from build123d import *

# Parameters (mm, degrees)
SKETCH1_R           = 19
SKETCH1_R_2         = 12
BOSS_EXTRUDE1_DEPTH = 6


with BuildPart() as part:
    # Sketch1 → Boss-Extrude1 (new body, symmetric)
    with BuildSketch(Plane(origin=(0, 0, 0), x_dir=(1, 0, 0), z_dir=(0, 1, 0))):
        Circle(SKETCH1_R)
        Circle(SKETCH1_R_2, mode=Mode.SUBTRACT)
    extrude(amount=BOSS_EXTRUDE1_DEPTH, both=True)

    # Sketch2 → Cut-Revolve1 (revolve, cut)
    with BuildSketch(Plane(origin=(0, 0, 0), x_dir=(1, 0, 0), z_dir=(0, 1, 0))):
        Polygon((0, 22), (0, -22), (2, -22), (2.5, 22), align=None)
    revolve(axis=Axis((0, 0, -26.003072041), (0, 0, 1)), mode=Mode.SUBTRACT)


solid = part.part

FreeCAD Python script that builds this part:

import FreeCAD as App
import Part
import Sketcher

V = App.Vector

doc = App.newDocument("Part")
body = doc.addObject("PartDesign::Body", "Body")

# Sketch on XZ plane
sketch1 = body.newObject("Sketcher::SketchObject", "Sketch")
sketch1.AttachmentSupport = (doc.getObject("XZ_Plane"), [""])
sketch1.MapMode = "FlatFace"
sketch1.addGeometry(Part.Circle(V(0, 0, 0), V(0, 0, 1), 19), False)
sketch1.addGeometry(Part.Circle(V(0, 0, 0), V(0, 0, 1), 12), False)
sketch1.addConstraint(Sketcher.Constraint("Coincident", 0, 3, -1, 1))
sketch1.addConstraint(Sketcher.Constraint("Coincident", 1, 3, -1, 1))
sketch1.addConstraint(Sketcher.Constraint("Diameter", 0, 38.0))
sketch1.addConstraint(Sketcher.Constraint("Diameter", 1, 24.0))
pad1 = body.newObject("PartDesign::Pad", "Pad")
pad1.Profile = sketch1
pad1.Length = 12
pad1.Midplane = True

# Sketch on XZ plane
sketch2 = body.newObject("Sketcher::SketchObject", "Sketch001")
sketch2.AttachmentSupport = (doc.getObject("XZ_Plane"), [""])
sketch2.MapMode = "FlatFace"
sketch2.addGeometry(Part.LineSegment(V(0, -22, 0), V(0, 22, 0)), False)
sketch2.addGeometry(Part.LineSegment(V(0, 22, 0), V(2, 22, 0)), False)
sketch2.addGeometry(Part.LineSegment(V(2, 22, 0), V(2.5, -22, 0)), False)
sketch2.addGeometry(Part.LineSegment(V(2.5, -22, 0), V(0, -22, 0)), False)
sketch2.addConstraint(Sketcher.Constraint("Coincident", 0, 2, 1, 1))
sketch2.addConstraint(Sketcher.Constraint("Coincident", 1, 2, 2, 1))
sketch2.addConstraint(Sketcher.Constraint("Coincident", 2, 2, 3, 1))
sketch2.addConstraint(Sketcher.Constraint("Coincident", 3, 2, 0, 1))
sketch2.addConstraint(Sketcher.Constraint("Vertical", 0))
sketch2.addConstraint(Sketcher.Constraint("Horizontal", 1))
sketch2.addConstraint(Sketcher.Constraint("Horizontal", 3))
sketch2.addConstraint(Sketcher.Constraint("Symmetric", 0, 2, 3, 2, -1, 1))
sketch2.addConstraint(Sketcher.Constraint("DistanceX", 1, 1, 1, 2, 2.0))
sketch2.addConstraint(Sketcher.Constraint("DistanceY", 0, 1, 0, 2, 44.0))
sketch2.addConstraint(Sketcher.Constraint("DistanceX", 3, 2, 3, 1, 2.5))
groove = body.newObject("PartDesign::Groove", "Groove")
groove.Profile = sketch2
groove.ReferenceAxis = (sketch2, ["V_Axis"])
groove.Angle = 360

doc.recompute()
